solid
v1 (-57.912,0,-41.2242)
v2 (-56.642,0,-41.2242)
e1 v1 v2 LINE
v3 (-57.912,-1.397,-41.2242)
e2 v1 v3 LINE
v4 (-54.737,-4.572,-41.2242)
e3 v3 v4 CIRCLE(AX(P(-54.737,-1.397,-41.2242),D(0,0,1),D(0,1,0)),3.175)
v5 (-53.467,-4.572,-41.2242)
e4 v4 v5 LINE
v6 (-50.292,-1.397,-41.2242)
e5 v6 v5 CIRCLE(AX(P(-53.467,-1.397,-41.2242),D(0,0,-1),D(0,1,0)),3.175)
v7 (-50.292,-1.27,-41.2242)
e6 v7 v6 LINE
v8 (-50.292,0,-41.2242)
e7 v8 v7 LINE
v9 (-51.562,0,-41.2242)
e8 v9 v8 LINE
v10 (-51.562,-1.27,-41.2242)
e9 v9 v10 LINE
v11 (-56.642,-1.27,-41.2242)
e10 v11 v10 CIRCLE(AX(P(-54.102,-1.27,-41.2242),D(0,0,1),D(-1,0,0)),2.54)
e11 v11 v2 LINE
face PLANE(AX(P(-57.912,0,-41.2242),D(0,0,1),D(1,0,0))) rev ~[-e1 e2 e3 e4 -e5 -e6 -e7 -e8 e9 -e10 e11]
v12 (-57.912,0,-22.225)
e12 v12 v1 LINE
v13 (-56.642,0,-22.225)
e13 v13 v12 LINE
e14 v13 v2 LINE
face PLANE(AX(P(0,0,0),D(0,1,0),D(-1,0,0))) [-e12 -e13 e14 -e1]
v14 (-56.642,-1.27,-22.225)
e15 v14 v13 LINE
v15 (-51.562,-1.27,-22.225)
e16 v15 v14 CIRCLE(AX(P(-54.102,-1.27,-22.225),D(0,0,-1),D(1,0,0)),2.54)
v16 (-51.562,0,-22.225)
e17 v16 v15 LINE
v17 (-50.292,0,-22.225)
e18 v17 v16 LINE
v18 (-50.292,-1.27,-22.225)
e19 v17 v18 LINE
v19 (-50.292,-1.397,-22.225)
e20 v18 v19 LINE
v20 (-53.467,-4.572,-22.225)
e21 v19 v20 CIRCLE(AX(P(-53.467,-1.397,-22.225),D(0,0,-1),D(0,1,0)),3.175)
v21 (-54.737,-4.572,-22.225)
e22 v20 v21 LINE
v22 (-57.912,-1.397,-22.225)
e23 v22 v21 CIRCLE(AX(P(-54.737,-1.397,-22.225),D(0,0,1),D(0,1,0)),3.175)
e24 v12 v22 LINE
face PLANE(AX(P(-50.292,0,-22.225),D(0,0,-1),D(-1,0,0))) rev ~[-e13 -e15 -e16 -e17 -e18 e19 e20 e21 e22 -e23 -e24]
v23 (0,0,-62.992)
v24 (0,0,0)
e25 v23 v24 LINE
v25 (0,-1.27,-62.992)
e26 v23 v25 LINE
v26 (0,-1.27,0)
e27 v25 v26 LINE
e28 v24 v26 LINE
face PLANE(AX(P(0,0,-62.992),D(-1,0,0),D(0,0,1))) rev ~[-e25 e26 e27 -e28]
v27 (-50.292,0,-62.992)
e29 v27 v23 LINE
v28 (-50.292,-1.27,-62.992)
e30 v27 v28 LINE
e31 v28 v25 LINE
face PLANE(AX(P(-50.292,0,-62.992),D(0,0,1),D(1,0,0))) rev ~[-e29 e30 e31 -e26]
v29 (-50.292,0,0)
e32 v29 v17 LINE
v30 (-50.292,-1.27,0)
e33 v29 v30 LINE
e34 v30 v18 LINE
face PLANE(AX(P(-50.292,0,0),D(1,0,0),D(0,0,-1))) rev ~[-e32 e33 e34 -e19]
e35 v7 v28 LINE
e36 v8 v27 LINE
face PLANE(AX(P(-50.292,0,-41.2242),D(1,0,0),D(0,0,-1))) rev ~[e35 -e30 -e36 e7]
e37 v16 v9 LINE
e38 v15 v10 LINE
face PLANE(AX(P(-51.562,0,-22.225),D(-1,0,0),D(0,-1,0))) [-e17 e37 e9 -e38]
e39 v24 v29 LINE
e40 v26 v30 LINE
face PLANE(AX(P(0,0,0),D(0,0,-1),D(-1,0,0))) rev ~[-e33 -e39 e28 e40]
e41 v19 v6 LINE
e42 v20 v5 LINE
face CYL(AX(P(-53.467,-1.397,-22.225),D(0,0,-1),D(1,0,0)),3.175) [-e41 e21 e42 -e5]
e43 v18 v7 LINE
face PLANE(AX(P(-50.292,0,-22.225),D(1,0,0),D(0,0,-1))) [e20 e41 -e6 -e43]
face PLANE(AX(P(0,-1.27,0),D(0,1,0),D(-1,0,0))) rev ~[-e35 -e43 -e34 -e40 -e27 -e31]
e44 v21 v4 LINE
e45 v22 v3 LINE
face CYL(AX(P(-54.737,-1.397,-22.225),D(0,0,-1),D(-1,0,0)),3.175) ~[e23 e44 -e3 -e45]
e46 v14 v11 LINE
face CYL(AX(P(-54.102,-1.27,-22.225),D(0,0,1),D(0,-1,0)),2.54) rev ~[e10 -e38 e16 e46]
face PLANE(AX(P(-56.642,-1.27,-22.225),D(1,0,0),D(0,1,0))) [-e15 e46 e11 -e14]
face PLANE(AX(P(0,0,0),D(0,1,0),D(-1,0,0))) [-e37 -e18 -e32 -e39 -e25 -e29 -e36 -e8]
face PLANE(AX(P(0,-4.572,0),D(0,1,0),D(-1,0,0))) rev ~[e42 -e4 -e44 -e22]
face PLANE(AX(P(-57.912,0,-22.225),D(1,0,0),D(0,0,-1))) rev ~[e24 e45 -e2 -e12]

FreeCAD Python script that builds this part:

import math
import FreeCAD as App
import Part
import Sketcher

V = App.Vector
Q = App.Units.Quantity


def edges_at(feature, points):
    """Names of the edges that pass closest to the given points."""
    edges = feature.Shape.Edges
    near = lambda p: min(range(len(edges)), key=lambda i: edges[i].distToShape(Part.Vertex(*p))[0])
    return sorted({f"Edge{near(p) + 1}" for p in points})

doc = App.newDocument("Part")
body = doc.addObject("PartDesign::Body", "Body")

# Sketch on XZ plane
sketch1 = doc.addObject("Sketcher::SketchObject", "Sketch")
body.addObject(sketch1)
sketch1.AttachmentSupport = (doc.XZ_Plane, [""])
sketch1.MapMode = "FlatFace"
sketch1.addGeometry([
    Part.LineSegment(V(-50, 0, 0), V(0, 0, 0)),
    Part.LineSegment(V(0, 0, 0), V(0, -63, 0)),
    Part.LineSegment(V(0, -63, 0), V(-50, -63, 0)),
    Part.LineSegment(V(-50, -63, 0), V(-50, 0, 0)),
], False)
sketch1.addConstraint([
    Sketcher.Constraint("Coincident", 0, 2, 1, 1),
    Sketcher.Constraint("Coincident", 1, 2, 2, 1),
    Sketcher.Constraint("Coincident", 2, 2, 3, 1),
    Sketcher.Constraint("Coincident", 3, 2, 0, 1),
    Sketcher.Constraint("Horizontal", 0),
    Sketcher.Constraint("Vertical", 1),
    Sketcher.Constraint("Horizontal", 2),
    Sketcher.Constraint("Vertical", 3),
    Sketcher.Constraint("Coincident", 0, 2, -1, 1),
    Sketcher.Constraint("DistanceX", 0, 1, 0, 2, Q("1.98 in")),
    Sketcher.Constraint("DistanceY", 1, 2, 1, 1, Q("2.48 in")),
])
pad1 = doc.addObject("PartDesign::Pad", "Pad")
body.addObject(pad1)
pad1.Profile = sketch1
pad1.Length = Q("0.05 in")

# Sketch on XZ plane
sketch2 = doc.addObject("Sketcher::SketchObject", "Sketch001")
body.addObject(sketch2)
sketch2.AttachmentSupport = (doc.XZ_Plane, [""])
sketch2.MapMode = "FlatFace"
sketch2.addGeometry([
    Part.LineSegment(V(-58, -22, 0), V(-50, -22, 0)),
    Part.LineSegment(V(-50, -22, 0), V(-50, -41, 0)),
    Part.LineSegment(V(-50, -41, 0), V(-58, -41, 0)),
    Part.LineSegment(V(-58, -41, 0), V(-58, -22, 0)),
], False)
sketch2.addConstraint([
    Sketcher.Constraint("Coincident", 0, 2, 1, 1),
    Sketcher.Constraint("Coincident", 1, 2, 2, 1),
    Sketcher.Constraint("Coincident", 2, 2, 3, 1),
    Sketcher.Constraint("Coincident", 3, 2, 0, 1),
    Sketcher.Constraint("Horizontal", 0),
    Sketcher.Constraint("Vertical", 1),
    Sketcher.Constraint("Horizontal", 2),
    Sketcher.Constraint("Vertical", 3),
    Sketcher.Constraint("DistanceX", 0, 1, 0, 2, Q("0.3 in")),
    Sketcher.Constraint("DistanceY", 1, 2, 1, 1, Q("0.748 in")),
    Sketcher.Constraint("DistanceX", 0, 2, -1, 1, Q("1.98 in")),
    Sketcher.Constraint("DistanceY", 0, 2, -1, 1, Q("0.875 in")),
])
pad2 = doc.addObject("PartDesign::Pad", "Pad001")
body.addObject(pad2)
pad2.Profile = sketch2
pad2.Length = Q("0.18 in")

# Sketch on XY plane
sketch3 = doc.addObject("Sketcher::SketchObject", "Sketch002")
body.addObject(sketch3)
sketch3.AttachmentSupport = (doc.XY_Plane, [""])
sketch3.MapMode = "FlatFace"
sketch3.AttachmentOffset = App.Placement(V(0, 0, -0.875 * 25.4), App.Rotation())
sketch3.addGeometry([
    Part.LineSegment(V(-51.6, -1.3, 0), V(-51.6, 0, 0)),
    Part.LineSegment(V(-51.6, 0, 0), V(-56.6, 0, 0)),
    Part.LineSegment(V(-56.6, 0, 0), V(-56.6, -1.3, 0)),
    Part.ArcOfCircle(Part.Circle(V(-54.1, -1.3, 0), V(0, 0, 1), 2.5), math.radians(180), math.radians(360)),
], False)
sketch3.addConstraint([
    Sketcher.Constraint("Coincident", 0, 2, 1, 1),
    Sketcher.Constraint("Coincident", 1, 2, 2, 1),
    Sketcher.Constraint("Tangent", 2, 2, 3, 1),
    Sketcher.Constraint("Tangent", 3, 2, 0, 1),
    Sketcher.Constraint("Vertical", 0),
    Sketcher.Constraint("Horizontal", 1),
    Sketcher.Constraint("Vertical", 2),
    Sketcher.Constraint("PointOnObject", 0, 2, -1),
    Sketcher.Constraint("Radius", 3, Q("0.1 in")),
    Sketcher.Constraint("DistanceY", 0, 1, 0, 2, Q("0.05 in")),
    Sketcher.Constraint("DistanceX", 3, 3, -1, 1, Q("2.13 in")),
])
pocket1 = doc.addObject("PartDesign::Pocket", "Pocket")
body.addObject(pocket1)
pocket1.Profile = sketch3
pocket1.Type = "ThroughAll"
doc.recompute()

fillet = doc.addObject("PartDesign::Fillet", "Fillet")
body.addObject(fillet)
fillet.Base = (pocket1, edges_at(pocket1, [(-50.292, -4.572, -31.725), (-57.912, -4.572, -31.725)]))
fillet.Radius = Q("0.125 in")

doc.recompute()
